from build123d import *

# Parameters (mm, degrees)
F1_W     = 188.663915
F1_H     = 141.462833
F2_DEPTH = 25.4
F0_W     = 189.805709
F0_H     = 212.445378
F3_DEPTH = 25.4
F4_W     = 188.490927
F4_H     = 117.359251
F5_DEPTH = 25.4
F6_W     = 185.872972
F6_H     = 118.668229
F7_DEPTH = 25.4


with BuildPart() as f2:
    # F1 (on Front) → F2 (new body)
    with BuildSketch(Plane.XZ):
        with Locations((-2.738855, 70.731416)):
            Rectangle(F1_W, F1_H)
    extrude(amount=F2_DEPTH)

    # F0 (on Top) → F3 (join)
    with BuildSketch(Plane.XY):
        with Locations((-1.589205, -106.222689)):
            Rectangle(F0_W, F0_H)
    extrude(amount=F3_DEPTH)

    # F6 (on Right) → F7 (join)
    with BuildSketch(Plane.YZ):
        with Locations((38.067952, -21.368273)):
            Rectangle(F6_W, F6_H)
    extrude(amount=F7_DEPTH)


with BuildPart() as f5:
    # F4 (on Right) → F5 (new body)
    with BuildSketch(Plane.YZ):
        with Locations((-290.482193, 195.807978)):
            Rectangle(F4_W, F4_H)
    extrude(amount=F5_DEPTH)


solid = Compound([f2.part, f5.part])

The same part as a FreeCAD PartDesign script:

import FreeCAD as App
import Part
import Sketcher
from FreeCAD import Vector
Q = App.Units.Quantity


def add_polygon(sketch, points):
    """Adds a closed chain of lines whose ends are joined by coincident constraints."""
    first, n = sketch.GeometryCount, len(points)
    for a, b in zip(points, points[1:] + points[:1]):
        sketch.addGeometry(Part.LineSegment(App.Vector(*a, 0), App.Vector(*b, 0)), False)
    for i in range(n):
        sketch.addConstraint(Sketcher.Constraint("Coincident", first + i, 2, first + (i + 1) % n, 1))

doc = App.newDocument("Part")
body = doc.addObject("PartDesign::Body", "Body")

sketch1 = body.newObject("Sketcher::SketchObject", "Sketch")
sketch1.AttachmentSupport = (doc.getObject("XZ_Plane"), [""])
sketch1.MapMode = "FlatFace"
add_polygon(sketch1, [(-97, 141), (-97, 0), (92, 0), (92, 141)])
sketch1.addConstraint([
    Sketcher.Constraint("Vertical", 0),
    Sketcher.Constraint("Horizontal", 1),
    Sketcher.Constraint("Vertical", 2),
    Sketcher.Constraint("Horizontal", 3),
    Sketcher.Constraint("PointOnObject", 0, 2, -1),
    Sketcher.Constraint("DistanceX", 1, 1, 1, 2, 188.663915),
    Sketcher.Constraint("DistanceY", 0, 2, 0, 1, 141.462833),
    Sketcher.Constraint("DistanceX", 0, 2, -1, 1, 97.070813),
])
pad1 = body.newObject("PartDesign::Pad", "Pad")
pad1.Profile = sketch1
pad1.Length = Q("1 in")

sketch2 = body.newObject("Sketcher::SketchObject", "Sketch001")
sketch2.AttachmentSupport = (doc.getObject("XY_Plane"), [""])
sketch2.MapMode = "FlatFace"
add_polygon(sketch2, [(-96, 0), (-96, -212), (93, -212), (93, 0)])
sketch2.addConstraint([
    Sketcher.Constraint("Vertical", 0),
    Sketcher.Constraint("Horizontal", 1),
    Sketcher.Constraint("Vertical", 2),
    Sketcher.Constraint("Horizontal", 3),
    Sketcher.Constraint("PointOnObject", 2, 2, -1),
    Sketcher.Constraint("DistanceX", 0, 2, -1, 1, Q("3.7989 in")),
    Sketcher.Constraint("DistanceX", 1, 1, 1, 2, 189.805709),
    Sketcher.Constraint("DistanceY", 0, 2, 0, 1, 212.445378),
])
pad2 = body.newObject("PartDesign::Pad", "Pad001")
pad2.Profile = sketch2
pad2.Length = Q("1 in")

sketch3 = body.newObject("Sketcher::SketchObject", "Sketch002")
sketch3.AttachmentSupport = (doc.getObject("YZ_Plane"), [""])
sketch3.MapMode = "FlatFace"
add_polygon(sketch3, [(-55, 38), (-55, -81), (131, -81), (131, 38)])
sketch3.addConstraint([
    Sketcher.Constraint("Vertical", 0),
    Sketcher.Constraint("Horizontal", 1),
    Sketcher.Constraint("Vertical", 2),
    Sketcher.Constraint("Horizontal", 3),
    Sketcher.Constraint("DistanceX", 1, 1, 1, 2, 185.872972),
    Sketcher.Constraint("DistanceY", 0, 2, 0, 1, 118.668229),
    Sketcher.Constraint("DistanceX", -1, 1, 1, 2, 131.004438),
    Sketcher.Constraint("DistanceY", -1, 1, 2, 2, 37.965842),
])
pad3 = body.newObject("PartDesign::Pad", "Pad002")
pad3.Profile = sketch3
pad3.Length = Q("1 in")
body2 = doc.addObject("PartDesign::Body", "Body001")

sketch4 = body2.newObject("Sketcher::SketchObject", "Sketch003")
sketch4.AttachmentSupport = (doc.getObject("YZ_Plane001"), [""])
sketch4.MapMode = "FlatFace"
add_polygon(sketch4, [(-385, 254), (-385, 137), (-196, 137), (-196, 254)])
sketch4.addConstraint([
    Sketcher.Constraint("Vertical", 0),
    Sketcher.Constraint("Horizontal", 1),
    Sketcher.Constraint("Vertical", 2),
    Sketcher.Constraint("Horizontal", 3),
    Sketcher.Constraint("DistanceY", 0, 2, 0, 1, 117.359251),
    Sketcher.Constraint("DistanceX", 1, 1, 1, 2, 188.490927),
    Sketcher.Constraint("DistanceX", 1, 2, -1, 1, 196.236729),
    Sketcher.Constraint("DistanceY", -1, 1, 0, 2, 137.128353),
])
pad4 = body2.newObject("PartDesign::Pad", "Pad003")
pad4.Profile = sketch4
pad4.Length = Q("1 in")

doc.recompute()
